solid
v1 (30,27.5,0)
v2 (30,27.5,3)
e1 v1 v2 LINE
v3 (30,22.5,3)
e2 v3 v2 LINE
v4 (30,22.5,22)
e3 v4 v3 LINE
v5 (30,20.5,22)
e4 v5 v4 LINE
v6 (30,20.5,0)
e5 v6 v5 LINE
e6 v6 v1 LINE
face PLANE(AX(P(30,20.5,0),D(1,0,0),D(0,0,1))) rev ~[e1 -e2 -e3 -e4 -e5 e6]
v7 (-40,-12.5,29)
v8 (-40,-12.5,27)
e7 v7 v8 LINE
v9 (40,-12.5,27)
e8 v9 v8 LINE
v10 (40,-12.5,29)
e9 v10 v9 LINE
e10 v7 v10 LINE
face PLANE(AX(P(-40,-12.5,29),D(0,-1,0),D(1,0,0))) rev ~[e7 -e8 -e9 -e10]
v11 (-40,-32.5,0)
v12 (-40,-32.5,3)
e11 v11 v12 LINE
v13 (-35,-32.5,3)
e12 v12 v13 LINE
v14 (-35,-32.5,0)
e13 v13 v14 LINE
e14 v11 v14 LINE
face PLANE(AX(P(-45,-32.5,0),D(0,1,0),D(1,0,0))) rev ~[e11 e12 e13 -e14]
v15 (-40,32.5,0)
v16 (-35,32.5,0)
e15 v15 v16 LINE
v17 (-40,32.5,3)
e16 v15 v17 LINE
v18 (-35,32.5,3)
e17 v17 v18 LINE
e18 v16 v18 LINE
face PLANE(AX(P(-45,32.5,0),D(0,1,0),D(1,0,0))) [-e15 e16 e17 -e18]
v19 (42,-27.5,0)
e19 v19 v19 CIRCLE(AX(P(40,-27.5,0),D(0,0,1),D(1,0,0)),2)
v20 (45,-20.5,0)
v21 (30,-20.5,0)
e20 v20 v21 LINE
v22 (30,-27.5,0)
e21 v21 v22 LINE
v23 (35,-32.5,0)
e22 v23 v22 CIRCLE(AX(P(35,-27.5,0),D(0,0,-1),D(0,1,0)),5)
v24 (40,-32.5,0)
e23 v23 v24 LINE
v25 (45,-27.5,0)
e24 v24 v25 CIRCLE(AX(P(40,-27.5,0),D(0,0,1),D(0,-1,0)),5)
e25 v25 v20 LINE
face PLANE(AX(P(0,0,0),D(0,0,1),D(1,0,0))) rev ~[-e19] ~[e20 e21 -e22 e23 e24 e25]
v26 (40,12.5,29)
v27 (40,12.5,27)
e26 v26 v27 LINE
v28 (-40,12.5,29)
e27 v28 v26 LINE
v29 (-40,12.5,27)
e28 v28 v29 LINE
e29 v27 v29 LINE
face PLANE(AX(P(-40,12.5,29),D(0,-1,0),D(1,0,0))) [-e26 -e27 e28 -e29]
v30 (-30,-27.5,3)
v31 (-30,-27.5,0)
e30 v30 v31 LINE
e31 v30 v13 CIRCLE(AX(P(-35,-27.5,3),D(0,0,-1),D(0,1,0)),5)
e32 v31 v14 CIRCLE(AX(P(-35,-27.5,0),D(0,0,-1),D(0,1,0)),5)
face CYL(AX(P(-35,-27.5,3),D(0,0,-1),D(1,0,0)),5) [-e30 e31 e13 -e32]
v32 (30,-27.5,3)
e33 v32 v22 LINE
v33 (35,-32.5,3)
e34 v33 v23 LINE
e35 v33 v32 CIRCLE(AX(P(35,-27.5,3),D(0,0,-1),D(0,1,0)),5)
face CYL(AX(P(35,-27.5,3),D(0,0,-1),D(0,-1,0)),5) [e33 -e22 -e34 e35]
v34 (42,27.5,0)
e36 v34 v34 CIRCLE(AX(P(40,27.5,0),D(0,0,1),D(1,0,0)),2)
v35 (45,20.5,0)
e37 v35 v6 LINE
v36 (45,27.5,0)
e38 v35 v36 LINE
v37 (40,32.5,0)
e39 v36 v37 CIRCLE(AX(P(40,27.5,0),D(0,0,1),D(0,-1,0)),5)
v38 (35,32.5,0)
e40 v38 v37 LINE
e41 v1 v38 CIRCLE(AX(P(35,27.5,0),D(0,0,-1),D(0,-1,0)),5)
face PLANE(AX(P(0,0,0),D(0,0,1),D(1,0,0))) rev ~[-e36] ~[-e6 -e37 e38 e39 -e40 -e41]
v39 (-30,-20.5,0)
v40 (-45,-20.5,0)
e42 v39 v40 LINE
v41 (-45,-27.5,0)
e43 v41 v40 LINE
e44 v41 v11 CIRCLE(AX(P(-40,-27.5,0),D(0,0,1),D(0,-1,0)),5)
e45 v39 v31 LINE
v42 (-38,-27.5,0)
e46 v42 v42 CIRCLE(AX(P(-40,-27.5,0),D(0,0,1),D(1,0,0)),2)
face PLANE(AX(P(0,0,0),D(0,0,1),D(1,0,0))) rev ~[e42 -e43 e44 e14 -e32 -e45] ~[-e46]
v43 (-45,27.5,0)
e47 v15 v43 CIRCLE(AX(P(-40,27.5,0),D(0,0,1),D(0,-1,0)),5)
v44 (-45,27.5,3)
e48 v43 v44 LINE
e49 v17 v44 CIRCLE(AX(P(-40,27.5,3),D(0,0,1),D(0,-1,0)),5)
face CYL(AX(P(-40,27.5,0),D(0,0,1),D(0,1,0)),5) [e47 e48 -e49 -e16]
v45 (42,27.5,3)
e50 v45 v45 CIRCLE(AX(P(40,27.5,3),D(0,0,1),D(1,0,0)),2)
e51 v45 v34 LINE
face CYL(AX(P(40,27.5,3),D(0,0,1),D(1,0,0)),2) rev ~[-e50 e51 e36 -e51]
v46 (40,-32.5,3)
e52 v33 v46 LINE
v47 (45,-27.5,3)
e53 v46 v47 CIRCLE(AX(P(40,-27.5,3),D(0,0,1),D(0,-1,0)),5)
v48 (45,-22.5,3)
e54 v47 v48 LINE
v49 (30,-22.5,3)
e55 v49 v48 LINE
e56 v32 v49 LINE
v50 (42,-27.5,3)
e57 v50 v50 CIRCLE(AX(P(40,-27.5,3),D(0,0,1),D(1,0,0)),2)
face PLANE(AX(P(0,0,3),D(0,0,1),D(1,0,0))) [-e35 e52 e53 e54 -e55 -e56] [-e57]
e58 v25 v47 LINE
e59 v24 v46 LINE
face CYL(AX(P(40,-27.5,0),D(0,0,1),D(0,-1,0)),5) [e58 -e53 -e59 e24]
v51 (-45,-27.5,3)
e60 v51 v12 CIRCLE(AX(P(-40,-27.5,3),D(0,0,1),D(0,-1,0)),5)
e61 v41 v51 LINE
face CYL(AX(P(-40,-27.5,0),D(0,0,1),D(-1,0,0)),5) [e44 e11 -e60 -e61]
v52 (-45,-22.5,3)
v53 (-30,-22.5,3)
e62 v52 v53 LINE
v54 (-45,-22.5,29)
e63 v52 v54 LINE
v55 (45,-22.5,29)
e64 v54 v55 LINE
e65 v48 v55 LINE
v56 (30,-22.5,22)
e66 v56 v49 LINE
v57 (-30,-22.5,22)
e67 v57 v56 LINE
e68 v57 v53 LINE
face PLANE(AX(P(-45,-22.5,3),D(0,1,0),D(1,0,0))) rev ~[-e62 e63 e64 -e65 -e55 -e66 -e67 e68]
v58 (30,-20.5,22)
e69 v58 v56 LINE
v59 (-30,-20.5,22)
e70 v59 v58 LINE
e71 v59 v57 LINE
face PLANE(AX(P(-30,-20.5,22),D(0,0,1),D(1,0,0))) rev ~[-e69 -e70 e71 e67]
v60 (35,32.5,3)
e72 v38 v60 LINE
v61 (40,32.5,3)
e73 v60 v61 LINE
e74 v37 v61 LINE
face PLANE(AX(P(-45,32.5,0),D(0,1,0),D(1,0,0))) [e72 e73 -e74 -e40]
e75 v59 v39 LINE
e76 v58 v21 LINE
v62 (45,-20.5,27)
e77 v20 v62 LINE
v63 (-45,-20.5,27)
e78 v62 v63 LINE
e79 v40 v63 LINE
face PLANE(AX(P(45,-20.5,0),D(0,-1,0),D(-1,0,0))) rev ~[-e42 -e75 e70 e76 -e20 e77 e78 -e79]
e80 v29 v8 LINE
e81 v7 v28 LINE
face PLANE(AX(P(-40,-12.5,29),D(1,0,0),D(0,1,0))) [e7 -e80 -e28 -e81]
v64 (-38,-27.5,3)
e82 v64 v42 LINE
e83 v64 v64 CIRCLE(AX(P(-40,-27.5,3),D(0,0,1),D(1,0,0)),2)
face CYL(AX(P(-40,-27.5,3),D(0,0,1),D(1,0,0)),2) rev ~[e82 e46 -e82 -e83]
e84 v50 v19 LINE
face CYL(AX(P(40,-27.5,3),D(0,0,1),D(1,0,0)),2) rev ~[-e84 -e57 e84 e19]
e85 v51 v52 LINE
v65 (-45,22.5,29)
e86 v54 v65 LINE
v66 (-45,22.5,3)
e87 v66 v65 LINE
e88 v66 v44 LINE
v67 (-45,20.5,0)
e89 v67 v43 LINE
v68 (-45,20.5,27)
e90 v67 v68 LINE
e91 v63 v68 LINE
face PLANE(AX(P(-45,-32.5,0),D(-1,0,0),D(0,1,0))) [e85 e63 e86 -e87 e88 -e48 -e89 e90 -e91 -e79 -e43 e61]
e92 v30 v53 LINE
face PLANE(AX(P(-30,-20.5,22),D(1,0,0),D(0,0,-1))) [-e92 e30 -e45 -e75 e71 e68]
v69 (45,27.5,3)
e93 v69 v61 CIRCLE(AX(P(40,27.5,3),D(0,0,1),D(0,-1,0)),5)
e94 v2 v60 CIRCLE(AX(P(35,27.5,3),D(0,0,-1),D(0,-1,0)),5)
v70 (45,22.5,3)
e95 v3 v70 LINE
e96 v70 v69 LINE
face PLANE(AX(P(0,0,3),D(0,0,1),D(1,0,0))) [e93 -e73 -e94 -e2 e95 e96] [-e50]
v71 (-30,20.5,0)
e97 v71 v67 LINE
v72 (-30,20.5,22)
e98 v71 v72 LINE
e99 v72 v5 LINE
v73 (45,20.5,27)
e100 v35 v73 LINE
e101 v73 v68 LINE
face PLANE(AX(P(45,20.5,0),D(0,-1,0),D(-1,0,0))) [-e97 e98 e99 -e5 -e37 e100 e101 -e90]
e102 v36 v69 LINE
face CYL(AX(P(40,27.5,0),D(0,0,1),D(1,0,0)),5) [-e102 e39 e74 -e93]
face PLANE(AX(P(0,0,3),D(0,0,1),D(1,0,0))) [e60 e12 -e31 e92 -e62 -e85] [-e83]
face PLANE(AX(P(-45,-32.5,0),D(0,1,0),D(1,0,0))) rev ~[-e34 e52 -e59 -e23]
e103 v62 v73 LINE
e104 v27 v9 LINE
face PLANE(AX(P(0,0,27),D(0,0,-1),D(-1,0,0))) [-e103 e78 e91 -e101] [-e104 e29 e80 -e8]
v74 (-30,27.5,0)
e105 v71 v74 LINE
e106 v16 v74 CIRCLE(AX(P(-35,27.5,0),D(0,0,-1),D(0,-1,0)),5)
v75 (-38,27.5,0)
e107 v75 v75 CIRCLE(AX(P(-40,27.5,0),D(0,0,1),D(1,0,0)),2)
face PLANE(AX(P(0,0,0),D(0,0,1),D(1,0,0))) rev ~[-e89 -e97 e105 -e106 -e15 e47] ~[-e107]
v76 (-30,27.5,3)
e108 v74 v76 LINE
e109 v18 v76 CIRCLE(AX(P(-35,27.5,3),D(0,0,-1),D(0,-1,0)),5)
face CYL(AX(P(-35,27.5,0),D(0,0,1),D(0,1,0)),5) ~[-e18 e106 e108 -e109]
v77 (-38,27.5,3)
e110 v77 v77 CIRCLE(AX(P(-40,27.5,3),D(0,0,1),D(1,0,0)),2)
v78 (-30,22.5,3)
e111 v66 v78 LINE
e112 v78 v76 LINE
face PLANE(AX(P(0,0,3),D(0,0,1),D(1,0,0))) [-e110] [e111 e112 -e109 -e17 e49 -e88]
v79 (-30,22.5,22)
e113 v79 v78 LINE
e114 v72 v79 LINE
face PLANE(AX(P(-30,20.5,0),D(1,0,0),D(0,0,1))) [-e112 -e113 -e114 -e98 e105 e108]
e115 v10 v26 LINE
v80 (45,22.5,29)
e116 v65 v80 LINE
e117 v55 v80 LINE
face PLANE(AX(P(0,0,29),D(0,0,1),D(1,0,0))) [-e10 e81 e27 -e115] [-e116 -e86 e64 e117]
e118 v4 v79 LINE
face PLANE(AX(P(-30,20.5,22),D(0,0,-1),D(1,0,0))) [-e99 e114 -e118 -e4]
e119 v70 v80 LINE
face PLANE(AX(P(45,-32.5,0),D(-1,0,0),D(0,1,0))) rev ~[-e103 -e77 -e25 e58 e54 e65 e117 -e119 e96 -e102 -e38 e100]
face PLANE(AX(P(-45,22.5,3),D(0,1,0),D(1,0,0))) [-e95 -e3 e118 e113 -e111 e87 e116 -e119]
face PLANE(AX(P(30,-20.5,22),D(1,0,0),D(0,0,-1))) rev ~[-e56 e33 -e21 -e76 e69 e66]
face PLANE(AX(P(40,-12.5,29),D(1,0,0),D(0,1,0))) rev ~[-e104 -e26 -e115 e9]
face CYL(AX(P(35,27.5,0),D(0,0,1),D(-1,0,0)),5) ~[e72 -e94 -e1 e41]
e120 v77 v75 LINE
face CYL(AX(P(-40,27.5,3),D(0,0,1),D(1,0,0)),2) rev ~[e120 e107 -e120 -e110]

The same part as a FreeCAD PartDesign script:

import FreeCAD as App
import Part
import Sketcher
from FreeCAD import Vector
Q = App.Units.Quantity


def edges_at(feature, points):
    """Names of the edges that pass closest to the given points."""
    edges = feature.Shape.Edges
    near = lambda p: min(range(len(edges)), key=lambda i: edges[i].distToShape(Part.Vertex(*p))[0])
    return sorted({f"Edge{near(p) + 1}" for p in points})

doc = App.newDocument("Part")
body = doc.addObject("PartDesign::Body", "Body")

# Sketch on XY plane
sketch1 = doc.addObject("Sketcher::SketchObject", "Sketch")
body.addObject(sketch1)
sketch1.AttachmentSupport = (doc.XY_Plane, [""])
sketch1.MapMode = "FlatFace"
sketch1.addGeometry(Part.LineSegment(Vector(-45, 32, 0), Vector(-45, -32, 0)), False)
sketch1.addGeometry(Part.LineSegment(Vector(-45, -32, 0), Vector(45, -32, 0)), False)
sketch1.addGeometry(Part.LineSegment(Vector(45, -32, 0), Vector(45, 32, 0)), False)
sketch1.addGeometry(Part.LineSegment(Vector(45, 32, 0), Vector(-45, 32, 0)), False)
sketch1.addConstraint(Sketcher.Constraint("Coincident", 0, 2, 1, 1))
sketch1.addConstraint(Sketcher.Constraint("Coincident", 1, 2, 2, 1))
sketch1.addConstraint(Sketcher.Constraint("Coincident", 2, 2, 3, 1))
sketch1.addConstraint(Sketcher.Constraint("Coincident", 3, 2, 0, 1))
sketch1.addConstraint(Sketcher.Constraint("Vertical", 0))
sketch1.addConstraint(Sketcher.Constraint("Horizontal", 1))
sketch1.addConstraint(Sketcher.Constraint("Vertical", 2))
sketch1.addConstraint(Sketcher.Constraint("Horizontal", 3))
sketch1.addConstraint(Sketcher.Constraint("Symmetric", 0, 2, 2, 2, -1, 1))
sketch1.addConstraint(Sketcher.Constraint("DistanceX", 1, 1, 1, 2, Q("90 mm")))
sketch1.addConstraint(Sketcher.Constraint("DistanceY", 0, 2, 0, 1, Q("65 mm")))
pad1 = doc.addObject("PartDesign::Pad", "Pad")
body.addObject(pad1)
pad1.Profile = sketch1
pad1.Length = 3
doc.recompute()

fillet = doc.addObject("PartDesign::Fillet", "Fillet")
body.addObject(fillet)
fillet.Base = (pad1, edges_at(pad1, [(-45, -32.5, 1.5)]))
fillet.Radius = 5
doc.recompute()

fillet2 = doc.addObject("PartDesign::Fillet", "Fillet001")
body.addObject(fillet2)
fillet2.Base = (fillet, edges_at(fillet, [(45, -32.5, 1.5)]))
fillet2.Radius = 5
doc.recompute()

fillet3 = doc.addObject("PartDesign::Fillet", "Fillet002")
body.addObject(fillet3)
fillet3.Base = (fillet2, edges_at(fillet2, [(45, 32.5, 1.5)]))
fillet3.Radius = 5
doc.recompute()

fillet4 = doc.addObject("PartDesign::Fillet", "Fillet003")
body.addObject(fillet4)
fillet4.Base = (fillet3, edges_at(fillet3, [(-45, 32.5, 1.5)]))
fillet4.Radius = 5

# Sketch on XY plane
sketch2 = doc.addObject("Sketcher::SketchObject", "Sketch001")
body.addObject(sketch2)
sketch2.AttachmentSupport = (doc.XY_Plane, [""])
sketch2.MapMode = "FlatFace"
sketch2.AttachmentOffset = App.Placement(Vector(0, 0, 3), App.Rotation())
sketch2.addGeometry(Part.LineSegment(Vector(-45, 22, 0), Vector(-45, -22, 0)), False)
sketch2.addGeometry(Part.LineSegment(Vector(-45, -22, 0), Vector(45, -22, 0)), False)
sketch2.addGeometry(Part.LineSegment(Vector(45, -22, 0), Vector(45, 22, 0)), False)
sketch2.addGeometry(Part.LineSegment(Vector(45, 22, 0), Vector(-45, 22, 0)), False)
sketch2.addConstraint(Sketcher.Constraint("Coincident", 0, 2, 1, 1))
sketch2.addConstraint(Sketcher.Constraint("Coincident", 1, 2, 2, 1))
sketch2.addConstraint(Sketcher.Constraint("Coincident", 2, 2, 3, 1))
sketch2.addConstraint(Sketcher.Constraint("Coincident", 3, 2, 0, 1))
sketch2.addConstraint(Sketcher.Constraint("Vertical", 0))
sketch2.addConstraint(Sketcher.Constraint("Horizontal", 1))
sketch2.addConstraint(Sketcher.Constraint("Vertical", 2))
sketch2.addConstraint(Sketcher.Constraint("Horizontal", 3))
sketch2.addConstraint(Sketcher.Constraint("Symmetric", 0, 2, 2, 2, -1, 1))
sketch2.addConstraint(Sketcher.Constraint("DistanceX", 1, 1, 1, 2, Q("90 mm")))
sketch2.addConstraint(Sketcher.Constraint("DistanceY", 0, 2, 0, 1, Q("45 mm")))
pad2 = doc.addObject("PartDesign::Pad", "Pad001")
body.addObject(pad2)
pad2.Profile = sketch2
pad2.Length = 26

# Sketch on XY plane
sketch3 = doc.addObject("Sketcher::SketchObject", "Sketch002")
body.addObject(sketch3)
sketch3.AttachmentSupport = (doc.XY_Plane, [""])
sketch3.MapMode = "FlatFace"
sketch3.addGeometry(Part.LineSegment(Vector(45, 20, 0), Vector(45, -20, 0)), False)
sketch3.addGeometry(Part.LineSegment(Vector(45, -20, 0), Vector(-45, -20, 0)), False)
sketch3.addGeometry(Part.LineSegment(Vector(-45, -20, 0), Vector(-45, 20, 0)), False)
sketch3.addGeometry(Part.LineSegment(Vector(-45, 20, 0), Vector(45, 20, 0)), False)
sketch3.addConstraint(Sketcher.Constraint("Coincident", 0, 2, 1, 1))
sketch3.addConstraint(Sketcher.Constraint("Coincident", 1, 2, 2, 1))
sketch3.addConstraint(Sketcher.Constraint("Coincident", 2, 2, 3, 1))
sketch3.addConstraint(Sketcher.Constraint("Coincident", 3, 2, 0, 1))
sketch3.addConstraint(Sketcher.Constraint("Vertical", 0))
sketch3.addConstraint(Sketcher.Constraint("Horizontal", 1))
sketch3.addConstraint(Sketcher.Constraint("Vertical", 2))
sketch3.addConstraint(Sketcher.Constraint("Horizontal", 3))
sketch3.addConstraint(Sketcher.Constraint("Symmetric", 0, 2, 2, 2, -1, 1))
sketch3.addConstraint(Sketcher.Constraint("DistanceX", 1, 2, 1, 1, Q("90 mm")))
sketch3.addConstraint(Sketcher.Constraint("DistanceY", 0, 2, 0, 1, Q("41 mm")))
pocket1 = doc.addObject("PartDesign::Pocket", "Pocket")
body.addObject(pocket1)
pocket1.Profile = sketch3
pocket1.Length = 27
pocket1.Reversed = True

# Sketch on XY plane
sketch4 = doc.addObject("Sketcher::SketchObject", "Sketch003")
body.addObject(sketch4)
sketch4.AttachmentSupport = (doc.XY_Plane, [""])
sketch4.MapMode = "FlatFace"
sketch4.AttachmentOffset = App.Placement(Vector(0, 0, 29), App.Rotation())
sketch4.addGeometry(Part.LineSegment(Vector(-40, 12, 0), Vector(-40, -12, 0)), False)
sketch4.addGeometry(Part.LineSegment(Vector(-40, -12, 0), Vector(40, -12, 0)), False)
sketch4.addGeometry(Part.LineSegment(Vector(40, -12, 0), Vector(40, 12, 0)), False)
sketch4.addGeometry(Part.LineSegment(Vector(40, 12, 0), Vector(-40, 12, 0)), False)
sketch4.addConstraint(Sketcher.Constraint("Coincident", 0, 2, 1, 1))
sketch4.addConstraint(Sketcher.Constraint("Coincident", 1, 2, 2, 1))
sketch4.addConstraint(Sketcher.Constraint("Coincident", 2, 2, 3, 1))
sketch4.addConstraint(Sketcher.Constraint("Coincident", 3, 2, 0, 1))
sketch4.addConstraint(Sketcher.Constraint("Vertical", 0))
sketch4.addConstraint(Sketcher.Constraint("Horizontal", 1))
sketch4.addConstraint(Sketcher.Constraint("Vertical", 2))
sketch4.addConstraint(Sketcher.Constraint("Horizontal", 3))
sketch4.addConstraint(Sketcher.Constraint("Symmetric", 0, 2, 2, 2, -1, 1))
sketch4.addConstraint(Sketcher.Constraint("DistanceX", 1, 1, 1, 2, Q("80 mm")))
sketch4.addConstraint(Sketcher.Constraint("DistanceY", 0, 2, 0, 1, Q("25 mm")))
pocket2 = doc.addObject("PartDesign::Pocket", "Pocket001")
body.addObject(pocket2)
pocket2.Profile = sketch4
pocket2.Length = 3

# Sketch on XY plane
sketch5 = doc.addObject("Sketcher::SketchObject", "Sketch004")
body.addObject(sketch5)
sketch5.AttachmentSupport = (doc.XY_Plane, [""])
sketch5.MapMode = "FlatFace"
sketch5.AttachmentOffset = App.Placement(Vector(0, 0, 3), App.Rotation())
sketch5.addGeometry(Part.Circle(Vector(40, -27.5, 0), Vector(0, 0, 1), 2), False)
sketch5.addGeometry(Part.Circle(Vector(-40, -27.5, 0), Vector(0, 0, 1), 2), False)
sketch5.addConstraint(Sketcher.Constraint("Equal", 0, 1))
sketch5.addConstraint(Sketcher.Constraint("Symmetric", 0, 3, 1, 3, -2))
sketch5.addConstraint(Sketcher.Constraint("Diameter", 0, Q("4 mm")))
sketch5.addConstraint(Sketcher.Constraint("DistanceX", -1, 1, 0, 3, Q("40 mm")))
sketch5.addConstraint(Sketcher.Constraint("DistanceY", 0, 3, -1, 1, Q("27.5 mm")))
pocket3 = doc.addObject("PartDesign::Pocket", "Pocket002")
body.addObject(pocket3)
pocket3.Profile = sketch5
pocket3.Length = 3

# Sketch on XY plane
sketch6 = doc.addObject("Sketcher::SketchObject", "Sketch005")
body.addObject(sketch6)
sketch6.AttachmentSupport = (doc.XY_Plane, [""])
sketch6.MapMode = "FlatFace"
sketch6.AttachmentOffset = App.Placement(Vector(0, 0, 3), App.Rotation())
sketch6.addGeometry(Part.Circle(Vector(-40, 27.5, 0), Vector(0, 0, 1), 2), False)
sketch6.addGeometry(Part.Circle(Vector(40, 27.5, 0), Vector(0, 0, 1), 2), False)
sketch6.addConstraint(Sketcher.Constraint("Equal", 0, 1))
sketch6.addConstraint(Sketcher.Constraint("Symmetric", 0, 3, 1, 3, -2))
sketch6.addConstraint(Sketcher.Constraint("Diameter", 0, Q("4 mm")))
sketch6.addConstraint(Sketcher.Constraint("DistanceX", 0, 3, -1, 1, Q("40 mm")))
sketch6.addConstraint(Sketcher.Constraint("DistanceY", -1, 1, 0, 3, Q("27.5 mm")))
pocket4 = doc.addObject("PartDesign::Pocket", "Pocket003")
body.addObject(pocket4)
pocket4.Profile = sketch6
pocket4.Length = 3

# Sketch on XZ plane
sketch7 = doc.addObject("Sketcher::SketchObject", "Sketch006")
body.addObject(sketch7)
sketch7.AttachmentSupport = (doc.XZ_Plane, [""])
sketch7.MapMode = "FlatFace"
sketch7.AttachmentOffset = App.Placement(Vector(0, 0, -20.5), App.Rotation())
sketch7.addGeometry(Part.LineSegment(Vector(-30, 22, 0), Vector(-30, 0, 0)), False)
sketch7.addGeometry(Part.LineSegment(Vector(-30, 0, 0), Vector(30, 0, 0)), False)
sketch7.addGeometry(Part.LineSegment(Vector(30, 0, 0), Vector(30, 22, 0)), False)
sketch7.addGeometry(Part.LineSegment(Vector(30, 22, 0), Vector(-30, 22, 0)), False)
sketch7.addConstraint(Sketcher.Constraint("Coincident", 0, 2, 1, 1))
sketch7.addConstraint(Sketcher.Constraint("Coincident", 1, 2, 2, 1))
sketch7.addConstraint(Sketcher.Constraint("Coincident", 2, 2, 3, 1))
sketch7.addConstraint(Sketcher.Constraint("Coincident", 3, 2, 0, 1))
sketch7.addConstraint(Sketcher.Constraint("Vertical", 0))
sketch7.addConstraint(Sketcher.Constraint("Horizontal", 1))
sketch7.addConstraint(Sketcher.Constraint("Vertical", 2))
sketch7.addConstraint(Sketcher.Constraint("Horizontal", 3))
sketch7.addConstraint(Sketcher.Constraint("Symmetric", 0, 2, 1, 2, -1, 1))
sketch7.addConstraint(Sketcher.Constraint("DistanceX", 1, 1, 1, 2, Q("60 mm")))
sketch7.addConstraint(Sketcher.Constraint("DistanceY", 0, 2, 0, 1, Q("22 mm")))
pocket5 = doc.addObject("PartDesign::Pocket", "Pocket004")
body.addObject(pocket5)
pocket5.Profile = sketch7
pocket5.Length = 12
doc.recompute()

fillet5 = doc.addObject("PartDesign::Fillet", "Fillet004")
body.addObject(fillet5)
fillet5.Base = (pocket5, edges_at(pocket5, [(-30, 32.5, 1.5)]))
fillet5.Radius = 5
doc.recompute()

fillet6 = doc.addObject("PartDesign::Fillet", "Fillet005")
body.addObject(fillet6)
fillet6.Base = (fillet5, edges_at(fillet5, [(30, 32.5, 1.5)]))
fillet6.Radius = 5

# Sketch on XZ plane
sketch8 = doc.addObject("Sketcher::SketchObject", "Sketch007")
body.addObject(sketch8)
sketch8.AttachmentSupport = (doc.XZ_Plane, [""])
sketch8.MapMode = "FlatFace"
sketch8.AttachmentOffset = App.Placement(Vector(0, 0, 20.5), App.Rotation())
sketch8.addGeometry(Part.LineSegment(Vector(-30, 0, 0), Vector(-30, 22, 0)), False)
sketch8.addGeometry(Part.LineSegment(Vector(-30, 22, 0), Vector(30, 22, 0)), False)
sketch8.addGeometry(Part.LineSegment(Vector(30, 22, 0), Vector(30, 0, 0)), False)
sketch8.addGeometry(Part.LineSegment(Vector(30, 0, 0), Vector(-30, 0, 0)), False)
sketch8.addConstraint(Sketcher.Constraint("Coincident", 0, 2, 1, 1))
sketch8.addConstraint(Sketcher.Constraint("Coincident", 1, 2, 2, 1))
sketch8.addConstraint(Sketcher.Constraint("Coincident", 2, 2, 3, 1))
sketch8.addConstraint(Sketcher.Constraint("Coincident", 3, 2, 0, 1))
sketch8.addConstraint(Sketcher.Constraint("Vertical", 0))
sketch8.addConstraint(Sketcher.Constraint("Horizontal", 1))
sketch8.addConstraint(Sketcher.Constraint("Vertical", 2))
sketch8.addConstraint(Sketcher.Constraint("Horizontal", 3))
sketch8.addConstraint(Sketcher.Constraint("Symmetric", 2, 2, 3, 2, -1, 1))
sketch8.addConstraint(Sketcher.Constraint("DistanceX", 1, 1, 1, 2, Q("60 mm")))
sketch8.addConstraint(Sketcher.Constraint("DistanceY", 0, 1, 0, 2, Q("22 mm")))
pocket6 = doc.addObject("PartDesign::Pocket", "Pocket005")
body.addObject(pocket6)
pocket6.Profile = sketch8
pocket6.Length = 12
pocket6.Reversed = True
doc.recompute()

fillet7 = doc.addObject("PartDesign::Fillet", "Fillet006")
body.addObject(fillet7)
fillet7.Base = (pocket6, edges_at(pocket6, [(30, -32.5, 1.5)]))
fillet7.Radius = 5
doc.recompute()

fillet8 = doc.addObject("PartDesign::Fillet", "Fillet007")
body.addObject(fillet8)
fillet8.Base = (fillet7, edges_at(fillet7, [(-30, -32.5, 1.5)]))
fillet8.Radius = 5

doc.recompute()
